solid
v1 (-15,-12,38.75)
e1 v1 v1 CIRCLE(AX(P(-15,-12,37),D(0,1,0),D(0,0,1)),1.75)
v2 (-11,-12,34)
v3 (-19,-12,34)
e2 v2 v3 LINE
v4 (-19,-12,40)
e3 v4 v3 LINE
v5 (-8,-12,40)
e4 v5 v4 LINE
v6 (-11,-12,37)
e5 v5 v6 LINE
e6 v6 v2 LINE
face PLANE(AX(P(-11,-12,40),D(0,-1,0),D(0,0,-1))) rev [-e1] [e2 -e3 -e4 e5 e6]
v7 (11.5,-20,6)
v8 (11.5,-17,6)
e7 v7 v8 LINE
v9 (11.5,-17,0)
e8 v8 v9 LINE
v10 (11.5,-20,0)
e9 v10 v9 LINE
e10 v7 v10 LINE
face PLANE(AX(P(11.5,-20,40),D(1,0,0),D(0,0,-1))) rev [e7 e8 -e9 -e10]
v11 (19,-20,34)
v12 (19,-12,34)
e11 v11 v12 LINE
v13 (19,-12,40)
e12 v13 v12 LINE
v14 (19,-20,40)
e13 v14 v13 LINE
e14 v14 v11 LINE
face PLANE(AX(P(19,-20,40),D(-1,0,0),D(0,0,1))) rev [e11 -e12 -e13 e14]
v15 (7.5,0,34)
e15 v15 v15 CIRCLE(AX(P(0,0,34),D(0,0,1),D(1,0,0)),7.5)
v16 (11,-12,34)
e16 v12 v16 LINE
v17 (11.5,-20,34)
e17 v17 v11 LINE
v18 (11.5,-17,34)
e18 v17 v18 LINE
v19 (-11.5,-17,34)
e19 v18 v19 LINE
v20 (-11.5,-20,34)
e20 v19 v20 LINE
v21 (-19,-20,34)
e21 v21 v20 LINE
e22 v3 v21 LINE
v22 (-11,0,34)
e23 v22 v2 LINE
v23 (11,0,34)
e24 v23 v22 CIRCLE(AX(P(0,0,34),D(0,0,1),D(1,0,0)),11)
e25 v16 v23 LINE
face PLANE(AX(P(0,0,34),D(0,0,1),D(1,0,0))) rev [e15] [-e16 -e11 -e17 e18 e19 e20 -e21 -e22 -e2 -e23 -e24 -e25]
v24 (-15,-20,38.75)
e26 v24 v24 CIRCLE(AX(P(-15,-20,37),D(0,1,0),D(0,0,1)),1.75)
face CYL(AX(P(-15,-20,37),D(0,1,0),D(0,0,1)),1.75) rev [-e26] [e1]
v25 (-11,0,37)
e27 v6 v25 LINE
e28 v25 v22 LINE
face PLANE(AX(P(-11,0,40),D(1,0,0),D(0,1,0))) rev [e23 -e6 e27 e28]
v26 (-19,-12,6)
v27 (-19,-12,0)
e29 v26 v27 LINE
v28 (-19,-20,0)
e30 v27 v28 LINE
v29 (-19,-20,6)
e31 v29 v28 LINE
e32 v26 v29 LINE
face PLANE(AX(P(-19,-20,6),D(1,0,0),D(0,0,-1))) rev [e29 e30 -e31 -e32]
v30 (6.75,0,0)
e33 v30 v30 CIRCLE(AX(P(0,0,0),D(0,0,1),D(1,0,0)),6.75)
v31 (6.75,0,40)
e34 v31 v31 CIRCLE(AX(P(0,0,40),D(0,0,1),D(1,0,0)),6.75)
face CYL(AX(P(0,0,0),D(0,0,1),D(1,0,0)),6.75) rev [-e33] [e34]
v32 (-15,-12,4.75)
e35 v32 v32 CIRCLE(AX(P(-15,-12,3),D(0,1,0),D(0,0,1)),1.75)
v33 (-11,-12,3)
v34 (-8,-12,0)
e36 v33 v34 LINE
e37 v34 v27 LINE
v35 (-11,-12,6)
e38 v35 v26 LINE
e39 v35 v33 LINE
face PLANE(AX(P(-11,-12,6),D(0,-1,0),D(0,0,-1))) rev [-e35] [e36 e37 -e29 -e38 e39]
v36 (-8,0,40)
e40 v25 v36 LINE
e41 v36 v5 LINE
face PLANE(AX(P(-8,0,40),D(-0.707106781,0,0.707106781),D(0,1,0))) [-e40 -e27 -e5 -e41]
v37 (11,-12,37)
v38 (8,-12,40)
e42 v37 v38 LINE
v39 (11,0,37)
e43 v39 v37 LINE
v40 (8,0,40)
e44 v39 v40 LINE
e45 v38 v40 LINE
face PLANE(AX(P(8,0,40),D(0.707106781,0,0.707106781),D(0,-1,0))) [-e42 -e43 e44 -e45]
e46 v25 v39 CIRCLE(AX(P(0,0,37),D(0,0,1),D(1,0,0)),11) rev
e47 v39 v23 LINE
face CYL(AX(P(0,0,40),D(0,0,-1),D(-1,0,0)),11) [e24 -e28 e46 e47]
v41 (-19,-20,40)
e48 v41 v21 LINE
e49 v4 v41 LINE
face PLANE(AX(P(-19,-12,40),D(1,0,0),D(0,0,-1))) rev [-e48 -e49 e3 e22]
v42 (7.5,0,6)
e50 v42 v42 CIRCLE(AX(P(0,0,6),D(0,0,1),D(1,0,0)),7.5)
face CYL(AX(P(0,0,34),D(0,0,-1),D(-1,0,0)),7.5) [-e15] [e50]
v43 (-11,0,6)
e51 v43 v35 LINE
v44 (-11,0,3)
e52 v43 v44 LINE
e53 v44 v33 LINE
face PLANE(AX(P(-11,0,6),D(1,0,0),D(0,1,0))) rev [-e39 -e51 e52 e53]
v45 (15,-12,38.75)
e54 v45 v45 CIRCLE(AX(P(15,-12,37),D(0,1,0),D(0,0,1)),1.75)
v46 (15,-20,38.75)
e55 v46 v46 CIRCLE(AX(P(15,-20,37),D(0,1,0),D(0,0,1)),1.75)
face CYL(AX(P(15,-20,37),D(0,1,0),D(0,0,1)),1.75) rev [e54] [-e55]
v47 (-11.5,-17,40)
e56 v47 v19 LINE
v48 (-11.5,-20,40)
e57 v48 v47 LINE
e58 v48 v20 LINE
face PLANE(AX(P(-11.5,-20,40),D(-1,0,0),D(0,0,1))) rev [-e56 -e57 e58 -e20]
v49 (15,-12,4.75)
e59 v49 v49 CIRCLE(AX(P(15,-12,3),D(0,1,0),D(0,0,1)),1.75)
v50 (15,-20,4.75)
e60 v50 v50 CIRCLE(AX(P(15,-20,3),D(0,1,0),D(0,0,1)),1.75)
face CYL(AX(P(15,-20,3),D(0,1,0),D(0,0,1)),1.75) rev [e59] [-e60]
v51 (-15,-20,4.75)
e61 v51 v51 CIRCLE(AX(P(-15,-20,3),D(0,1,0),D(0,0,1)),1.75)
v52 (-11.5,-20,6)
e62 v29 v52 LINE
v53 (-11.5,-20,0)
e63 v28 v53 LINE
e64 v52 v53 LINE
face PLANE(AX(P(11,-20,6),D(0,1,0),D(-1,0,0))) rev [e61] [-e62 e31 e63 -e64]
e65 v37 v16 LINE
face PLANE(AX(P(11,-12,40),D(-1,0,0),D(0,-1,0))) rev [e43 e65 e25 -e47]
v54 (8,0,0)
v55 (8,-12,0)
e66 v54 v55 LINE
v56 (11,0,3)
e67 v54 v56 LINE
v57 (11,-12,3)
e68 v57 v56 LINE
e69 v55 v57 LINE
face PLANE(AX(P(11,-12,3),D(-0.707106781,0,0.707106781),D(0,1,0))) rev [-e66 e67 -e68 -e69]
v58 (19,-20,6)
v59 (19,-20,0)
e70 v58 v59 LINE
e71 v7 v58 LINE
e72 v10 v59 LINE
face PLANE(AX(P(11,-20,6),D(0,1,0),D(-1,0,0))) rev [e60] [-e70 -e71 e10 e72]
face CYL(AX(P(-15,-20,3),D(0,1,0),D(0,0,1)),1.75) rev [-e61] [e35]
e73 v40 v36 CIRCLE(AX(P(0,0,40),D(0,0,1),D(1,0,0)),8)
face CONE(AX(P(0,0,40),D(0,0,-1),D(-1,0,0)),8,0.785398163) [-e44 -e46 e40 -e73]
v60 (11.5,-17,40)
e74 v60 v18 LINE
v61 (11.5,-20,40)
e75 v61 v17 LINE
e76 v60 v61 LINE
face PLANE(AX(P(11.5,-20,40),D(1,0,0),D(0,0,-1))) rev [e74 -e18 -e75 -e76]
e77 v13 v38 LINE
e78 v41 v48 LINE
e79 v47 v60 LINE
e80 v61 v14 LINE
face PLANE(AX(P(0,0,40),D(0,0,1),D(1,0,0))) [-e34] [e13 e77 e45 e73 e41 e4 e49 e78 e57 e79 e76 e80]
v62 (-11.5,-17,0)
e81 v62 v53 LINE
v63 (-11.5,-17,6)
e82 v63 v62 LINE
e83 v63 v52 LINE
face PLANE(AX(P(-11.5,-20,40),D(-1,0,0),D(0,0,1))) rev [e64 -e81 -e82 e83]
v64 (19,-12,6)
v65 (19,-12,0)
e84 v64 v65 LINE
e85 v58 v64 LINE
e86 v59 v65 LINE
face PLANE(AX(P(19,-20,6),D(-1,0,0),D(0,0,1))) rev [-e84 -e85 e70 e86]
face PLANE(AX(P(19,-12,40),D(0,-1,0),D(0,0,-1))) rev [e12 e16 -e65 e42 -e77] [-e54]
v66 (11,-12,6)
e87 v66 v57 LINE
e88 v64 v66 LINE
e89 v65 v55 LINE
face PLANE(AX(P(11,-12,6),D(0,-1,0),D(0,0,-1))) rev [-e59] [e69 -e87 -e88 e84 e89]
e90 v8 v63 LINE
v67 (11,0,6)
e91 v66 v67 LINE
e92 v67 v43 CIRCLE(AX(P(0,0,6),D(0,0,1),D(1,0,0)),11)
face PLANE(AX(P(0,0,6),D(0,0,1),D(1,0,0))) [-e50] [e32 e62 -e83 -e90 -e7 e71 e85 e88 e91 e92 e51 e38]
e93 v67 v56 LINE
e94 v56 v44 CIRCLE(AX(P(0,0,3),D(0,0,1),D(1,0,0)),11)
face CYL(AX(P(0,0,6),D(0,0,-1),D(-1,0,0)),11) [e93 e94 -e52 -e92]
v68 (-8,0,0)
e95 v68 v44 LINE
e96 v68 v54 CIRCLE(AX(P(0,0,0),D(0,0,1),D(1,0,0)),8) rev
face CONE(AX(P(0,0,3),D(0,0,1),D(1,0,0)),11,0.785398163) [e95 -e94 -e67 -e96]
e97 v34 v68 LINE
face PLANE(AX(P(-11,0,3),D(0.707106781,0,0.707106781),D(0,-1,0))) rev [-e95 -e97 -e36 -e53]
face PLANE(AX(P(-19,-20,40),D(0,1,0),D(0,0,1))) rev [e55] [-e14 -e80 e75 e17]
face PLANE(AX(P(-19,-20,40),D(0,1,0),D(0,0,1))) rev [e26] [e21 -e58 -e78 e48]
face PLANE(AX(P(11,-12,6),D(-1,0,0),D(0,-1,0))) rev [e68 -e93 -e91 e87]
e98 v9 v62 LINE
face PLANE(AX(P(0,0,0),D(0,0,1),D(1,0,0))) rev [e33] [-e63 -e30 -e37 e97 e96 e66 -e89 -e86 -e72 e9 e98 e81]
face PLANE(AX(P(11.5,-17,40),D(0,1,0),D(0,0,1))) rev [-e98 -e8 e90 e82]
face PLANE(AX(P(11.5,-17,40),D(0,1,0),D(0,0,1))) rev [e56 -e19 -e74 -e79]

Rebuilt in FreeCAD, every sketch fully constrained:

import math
import FreeCAD as App
import Part
import Sketcher

V = App.Vector


def edges_at(feature, points):
    """Names of the edges that pass closest to the given points."""
    edges = feature.Shape.Edges
    near = lambda p: min(range(len(edges)), key=lambda i: edges[i].distToShape(Part.Vertex(*p))[0])
    return sorted({f"Edge{near(p) + 1}" for p in points})

doc = App.newDocument("Part")
body = doc.addObject("PartDesign::Body", "Body")

sketch1 = body.newObject("Sketcher::SketchObject", "Sketch")
sketch1.AttachmentSupport = (doc.getObject("XY_Plane"), [""])
sketch1.MapMode = "FlatFace"
sketch1.addGeometry([
    Part.LineSegment(V(-11, 0, 0), V(-11, -12, 0)),
    Part.LineSegment(V(-11, -12, 0), V(-19, -12, 0)),
    Part.LineSegment(V(-19, -12, 0), V(-19, -20, 0)),
    Part.LineSegment(V(-19, -20, 0), V(19, -20, 0)),
    Part.LineSegment(V(19, -20, 0), V(19, -12, 0)),
    Part.LineSegment(V(19, -12, 0), V(11, -12, 0)),
    Part.LineSegment(V(11, -12, 0), V(11, 0, 0)),
    Part.ArcOfCircle(Part.Circle(V(0, 0, 0), V(0, 0, 1), 11), math.radians(0), math.radians(180)),
], False)
sketch1.addConstraint([
    Sketcher.Constraint("Coincident", 0, 2, 1, 1),
    Sketcher.Constraint("Coincident", 1, 2, 2, 1),
    Sketcher.Constraint("Coincident", 2, 2, 3, 1),
    Sketcher.Constraint("Coincident", 3, 2, 4, 1),
    Sketcher.Constraint("Coincident", 4, 2, 5, 1),
    Sketcher.Constraint("Coincident", 5, 2, 6, 1),
    Sketcher.Constraint("Tangent", 6, 2, 7, 1),
    Sketcher.Constraint("Tangent", 7, 2, 0, 1),
    Sketcher.Constraint("Vertical", 0),
    Sketcher.Constraint("Horizontal", 1),
    Sketcher.Constraint("Vertical", 2),
    Sketcher.Constraint("Horizontal", 3),
    Sketcher.Constraint("Vertical", 4),
    Sketcher.Constraint("Horizontal", 5),
    Sketcher.Constraint("Vertical", 6),
    Sketcher.Constraint("Coincident", 7, 3, -1, 1),
    Sketcher.Constraint("Symmetric", 1, 2, 4, 2, -2),
    Sketcher.Constraint("Equal", 5, 2),
    Sketcher.Constraint("Radius", 7, 11.0),
    Sketcher.Constraint("DistanceX", 1, 2, 1, 1, 8.0),
    Sketcher.Constraint("DistanceY", 0, 2, 0, 1, 12.0),
])
pad1 = body.newObject("PartDesign::Pad", "Pad")
pad1.Profile = sketch1
pad1.Length = 6

sketch2 = body.newObject("Sketcher::SketchObject", "Sketch001")
sketch2.AttachmentSupport = (doc.getObject("XY_Plane"), [""])
sketch2.MapMode = "FlatFace"
sketch2.AttachmentOffset = App.Placement(V(0, 0, 6), App.Rotation())
sketch2.addGeometry(Part.Circle(V(0, 0, 0), V(0, 0, 1), 8), False)
sketch2.addConstraint([
    Sketcher.Constraint("Coincident", 0, 3, -1, 1),
    Sketcher.Constraint("Diameter", 0, 15.0),
])
pad2 = body.newObject("PartDesign::Pad", "Pad001")
pad2.Profile = sketch2
pad2.Length = 28

sketch3 = body.newObject("Sketcher::SketchObject", "Sketch002")
sketch3.AttachmentSupport = (doc.getObject("XY_Plane"), [""])
sketch3.MapMode = "FlatFace"
sketch3.AttachmentOffset = App.Placement(V(0, 0, 34), App.Rotation())
sketch3.addGeometry([
    Part.LineSegment(V(-11, 0, 0), V(-11, -12, 0)),
    Part.LineSegment(V(-11, -12, 0), V(-19, -12, 0)),
    Part.LineSegment(V(-19, -12, 0), V(-19, -20, 0)),
    Part.LineSegment(V(-19, -20, 0), V(19, -20, 0)),
    Part.LineSegment(V(19, -20, 0), V(19, -12, 0)),
    Part.LineSegment(V(19, -12, 0), V(11, -12, 0)),
    Part.LineSegment(V(11, -12, 0), V(11, 0, 0)),
    Part.ArcOfCircle(Part.Circle(V(0, 0, 0), V(0, 0, 1), 11), math.radians(0), math.radians(180)),
], False)
sketch3.addConstraint([
    Sketcher.Constraint("Coincident", 0, 2, 1, 1),
    Sketcher.Constraint("Coincident", 1, 2, 2, 1),
    Sketcher.Constraint("Coincident", 2, 2, 3, 1),
    Sketcher.Constraint("Coincident", 3, 2, 4, 1),
    Sketcher.Constraint("Coincident", 4, 2, 5, 1),
    Sketcher.Constraint("Coincident", 5, 2, 6, 1),
    Sketcher.Constraint("Tangent", 6, 2, 7, 1),
    Sketcher.Constraint("Tangent", 7, 2, 0, 1),
    Sketcher.Constraint("Vertical", 0),
    Sketcher.Constraint("Horizontal", 1),
    Sketcher.Constraint("Vertical", 2),
    Sketcher.Constraint("Horizontal", 3),
    Sketcher.Constraint("Vertical", 4),
    Sketcher.Constraint("Horizontal", 5),
    Sketcher.Constraint("Vertical", 6),
    Sketcher.Constraint("Coincident", 7, 3, -1, 1),
    Sketcher.Constraint("Symmetric", 1, 2, 4, 2, -2),
    Sketcher.Constraint("Equal", 5, 2),
    Sketcher.Constraint("Radius", 7, 11.0),
    Sketcher.Constraint("DistanceX", 1, 2, 1, 1, 8.0),
    Sketcher.Constraint("DistanceY", 0, 2, 0, 1, 12.0),
])
pad3 = body.newObject("PartDesign::Pad", "Pad002")
pad3.Profile = sketch3
pad3.Length = 6

sketch4 = body.newObject("Sketcher::SketchObject", "Sketch003")
sketch4.AttachmentSupport = (doc.getObject("XY_Plane"), [""])
sketch4.MapMode = "FlatFace"
sketch4.AttachmentOffset = App.Placement(V(0, 0, 40), App.Rotation())
sketch4.addGeometry(Part.Circle(V(0, 0, 0), V(0, 0, 1), 7), False)
sketch4.addConstraint([
    Sketcher.Constraint("Coincident", 0, 3, -1, 1),
    Sketcher.Constraint("Diameter", 0, 13.5),
])
pocket1 = body.newObject("PartDesign::Pocket", "Pocket")
pocket1.Profile = sketch4
pocket1.Type = "ThroughAll"

sketch5 = body.newObject("Sketcher::SketchObject", "Sketch004")
sketch5.AttachmentSupport = (doc.getObject("XY_Plane"), [""])
sketch5.MapMode = "FlatFace"
sketch5.addGeometry([
    Part.LineSegment(V(11.5, -17, 0), V(11.5, -20, 0)),
    Part.LineSegment(V(11.5, -20, 0), V(-11.5, -20, 0)),
    Part.LineSegment(V(-11.5, -20, 0), V(-11.5, -17, 0)),
    Part.LineSegment(V(-11.5, -17, 0), V(11.5, -17, 0)),
], False)
sketch5.addConstraint([
    Sketcher.Constraint("Coincident", 0, 2, 1, 1),
    Sketcher.Constraint("Coincident", 1, 2, 2, 1),
    Sketcher.Constraint("Coincident", 2, 2, 3, 1),
    Sketcher.Constraint("Coincident", 3, 2, 0, 1),
    Sketcher.Constraint("Vertical", 0),
    Sketcher.Constraint("Horizontal", 1),
    Sketcher.Constraint("Vertical", 2),
    Sketcher.Constraint("Horizontal", 3),
    Sketcher.Constraint("DistanceX", 1, 2, 1, 1, 23.0),
    Sketcher.Constraint("DistanceY", 0, 2, 0, 1, 3.0),
    Sketcher.Constraint("DistanceY", 0, 2, -1, 1, 20.0),
    Sketcher.Constraint("DistanceX", -1, 1, 0, 2, 11.5),
])
pocket2 = body.newObject("PartDesign::Pocket", "Pocket001")
pocket2.Profile = sketch5
pocket2.Type = "ThroughAll"
pocket2.Midplane = True

sketch6 = body.newObject("Sketcher::SketchObject", "Sketch005")
sketch6.AttachmentSupport = (doc.getObject("XZ_Plane"), [""])
sketch6.MapMode = "FlatFace"
sketch6.AttachmentOffset = App.Placement(V(0, 0, 12), App.Rotation())
sketch6.addGeometry([
    Part.Circle(V(-15, 3, 0), V(0, 0, 1), 1.8),
    Part.Circle(V(15, 3, 0), V(0, 0, 1), 1.8),
    Part.Circle(V(15, 37, 0), V(0, 0, 1), 1.8),
    Part.Circle(V(-15, 37, 0), V(0, 0, 1), 1.8),
], False)
sketch6.addConstraint([
    Sketcher.Constraint("Equal", 0, 1),
    Sketcher.Constraint("Equal", 1, 2),
    Sketcher.Constraint("Equal", 2, 3),
    Sketcher.Constraint("Symmetric", 0, 3, 1, 3, -2),
    Sketcher.Constraint("Symmetric", 2, 3, 3, 3, -2),
    Sketcher.Constraint("Vertical", 1, 3, 2, 3),
    Sketcher.Constraint("Diameter", 0, 3.5),
    Sketcher.Constraint("DistanceX", 0, 3, -1, 1, 15.0),
    Sketcher.Constraint("DistanceY", -1, 1, 0, 3, 3.0),
    Sketcher.Constraint("DistanceY", -1, 1, 2, 3, 37.0),
])
pocket3 = body.newObject("PartDesign::Pocket", "Pocket002")
pocket3.Profile = sketch6
pocket3.Type = "ThroughAll"
pocket3.Reversed = True
doc.recompute()

chamfer = body.newObject("PartDesign::Chamfer", "Chamfer")
chamfer.Base = (pocket3, edges_at(pocket3, [
    (-11, -6, 0),
    (0, 11, 0),
    (11, -6, 0),
    (11, -6, 40),
    (0, 11, 40),
    (-11, -6, 40),
]))
chamfer.Size = 3

doc.recompute()
